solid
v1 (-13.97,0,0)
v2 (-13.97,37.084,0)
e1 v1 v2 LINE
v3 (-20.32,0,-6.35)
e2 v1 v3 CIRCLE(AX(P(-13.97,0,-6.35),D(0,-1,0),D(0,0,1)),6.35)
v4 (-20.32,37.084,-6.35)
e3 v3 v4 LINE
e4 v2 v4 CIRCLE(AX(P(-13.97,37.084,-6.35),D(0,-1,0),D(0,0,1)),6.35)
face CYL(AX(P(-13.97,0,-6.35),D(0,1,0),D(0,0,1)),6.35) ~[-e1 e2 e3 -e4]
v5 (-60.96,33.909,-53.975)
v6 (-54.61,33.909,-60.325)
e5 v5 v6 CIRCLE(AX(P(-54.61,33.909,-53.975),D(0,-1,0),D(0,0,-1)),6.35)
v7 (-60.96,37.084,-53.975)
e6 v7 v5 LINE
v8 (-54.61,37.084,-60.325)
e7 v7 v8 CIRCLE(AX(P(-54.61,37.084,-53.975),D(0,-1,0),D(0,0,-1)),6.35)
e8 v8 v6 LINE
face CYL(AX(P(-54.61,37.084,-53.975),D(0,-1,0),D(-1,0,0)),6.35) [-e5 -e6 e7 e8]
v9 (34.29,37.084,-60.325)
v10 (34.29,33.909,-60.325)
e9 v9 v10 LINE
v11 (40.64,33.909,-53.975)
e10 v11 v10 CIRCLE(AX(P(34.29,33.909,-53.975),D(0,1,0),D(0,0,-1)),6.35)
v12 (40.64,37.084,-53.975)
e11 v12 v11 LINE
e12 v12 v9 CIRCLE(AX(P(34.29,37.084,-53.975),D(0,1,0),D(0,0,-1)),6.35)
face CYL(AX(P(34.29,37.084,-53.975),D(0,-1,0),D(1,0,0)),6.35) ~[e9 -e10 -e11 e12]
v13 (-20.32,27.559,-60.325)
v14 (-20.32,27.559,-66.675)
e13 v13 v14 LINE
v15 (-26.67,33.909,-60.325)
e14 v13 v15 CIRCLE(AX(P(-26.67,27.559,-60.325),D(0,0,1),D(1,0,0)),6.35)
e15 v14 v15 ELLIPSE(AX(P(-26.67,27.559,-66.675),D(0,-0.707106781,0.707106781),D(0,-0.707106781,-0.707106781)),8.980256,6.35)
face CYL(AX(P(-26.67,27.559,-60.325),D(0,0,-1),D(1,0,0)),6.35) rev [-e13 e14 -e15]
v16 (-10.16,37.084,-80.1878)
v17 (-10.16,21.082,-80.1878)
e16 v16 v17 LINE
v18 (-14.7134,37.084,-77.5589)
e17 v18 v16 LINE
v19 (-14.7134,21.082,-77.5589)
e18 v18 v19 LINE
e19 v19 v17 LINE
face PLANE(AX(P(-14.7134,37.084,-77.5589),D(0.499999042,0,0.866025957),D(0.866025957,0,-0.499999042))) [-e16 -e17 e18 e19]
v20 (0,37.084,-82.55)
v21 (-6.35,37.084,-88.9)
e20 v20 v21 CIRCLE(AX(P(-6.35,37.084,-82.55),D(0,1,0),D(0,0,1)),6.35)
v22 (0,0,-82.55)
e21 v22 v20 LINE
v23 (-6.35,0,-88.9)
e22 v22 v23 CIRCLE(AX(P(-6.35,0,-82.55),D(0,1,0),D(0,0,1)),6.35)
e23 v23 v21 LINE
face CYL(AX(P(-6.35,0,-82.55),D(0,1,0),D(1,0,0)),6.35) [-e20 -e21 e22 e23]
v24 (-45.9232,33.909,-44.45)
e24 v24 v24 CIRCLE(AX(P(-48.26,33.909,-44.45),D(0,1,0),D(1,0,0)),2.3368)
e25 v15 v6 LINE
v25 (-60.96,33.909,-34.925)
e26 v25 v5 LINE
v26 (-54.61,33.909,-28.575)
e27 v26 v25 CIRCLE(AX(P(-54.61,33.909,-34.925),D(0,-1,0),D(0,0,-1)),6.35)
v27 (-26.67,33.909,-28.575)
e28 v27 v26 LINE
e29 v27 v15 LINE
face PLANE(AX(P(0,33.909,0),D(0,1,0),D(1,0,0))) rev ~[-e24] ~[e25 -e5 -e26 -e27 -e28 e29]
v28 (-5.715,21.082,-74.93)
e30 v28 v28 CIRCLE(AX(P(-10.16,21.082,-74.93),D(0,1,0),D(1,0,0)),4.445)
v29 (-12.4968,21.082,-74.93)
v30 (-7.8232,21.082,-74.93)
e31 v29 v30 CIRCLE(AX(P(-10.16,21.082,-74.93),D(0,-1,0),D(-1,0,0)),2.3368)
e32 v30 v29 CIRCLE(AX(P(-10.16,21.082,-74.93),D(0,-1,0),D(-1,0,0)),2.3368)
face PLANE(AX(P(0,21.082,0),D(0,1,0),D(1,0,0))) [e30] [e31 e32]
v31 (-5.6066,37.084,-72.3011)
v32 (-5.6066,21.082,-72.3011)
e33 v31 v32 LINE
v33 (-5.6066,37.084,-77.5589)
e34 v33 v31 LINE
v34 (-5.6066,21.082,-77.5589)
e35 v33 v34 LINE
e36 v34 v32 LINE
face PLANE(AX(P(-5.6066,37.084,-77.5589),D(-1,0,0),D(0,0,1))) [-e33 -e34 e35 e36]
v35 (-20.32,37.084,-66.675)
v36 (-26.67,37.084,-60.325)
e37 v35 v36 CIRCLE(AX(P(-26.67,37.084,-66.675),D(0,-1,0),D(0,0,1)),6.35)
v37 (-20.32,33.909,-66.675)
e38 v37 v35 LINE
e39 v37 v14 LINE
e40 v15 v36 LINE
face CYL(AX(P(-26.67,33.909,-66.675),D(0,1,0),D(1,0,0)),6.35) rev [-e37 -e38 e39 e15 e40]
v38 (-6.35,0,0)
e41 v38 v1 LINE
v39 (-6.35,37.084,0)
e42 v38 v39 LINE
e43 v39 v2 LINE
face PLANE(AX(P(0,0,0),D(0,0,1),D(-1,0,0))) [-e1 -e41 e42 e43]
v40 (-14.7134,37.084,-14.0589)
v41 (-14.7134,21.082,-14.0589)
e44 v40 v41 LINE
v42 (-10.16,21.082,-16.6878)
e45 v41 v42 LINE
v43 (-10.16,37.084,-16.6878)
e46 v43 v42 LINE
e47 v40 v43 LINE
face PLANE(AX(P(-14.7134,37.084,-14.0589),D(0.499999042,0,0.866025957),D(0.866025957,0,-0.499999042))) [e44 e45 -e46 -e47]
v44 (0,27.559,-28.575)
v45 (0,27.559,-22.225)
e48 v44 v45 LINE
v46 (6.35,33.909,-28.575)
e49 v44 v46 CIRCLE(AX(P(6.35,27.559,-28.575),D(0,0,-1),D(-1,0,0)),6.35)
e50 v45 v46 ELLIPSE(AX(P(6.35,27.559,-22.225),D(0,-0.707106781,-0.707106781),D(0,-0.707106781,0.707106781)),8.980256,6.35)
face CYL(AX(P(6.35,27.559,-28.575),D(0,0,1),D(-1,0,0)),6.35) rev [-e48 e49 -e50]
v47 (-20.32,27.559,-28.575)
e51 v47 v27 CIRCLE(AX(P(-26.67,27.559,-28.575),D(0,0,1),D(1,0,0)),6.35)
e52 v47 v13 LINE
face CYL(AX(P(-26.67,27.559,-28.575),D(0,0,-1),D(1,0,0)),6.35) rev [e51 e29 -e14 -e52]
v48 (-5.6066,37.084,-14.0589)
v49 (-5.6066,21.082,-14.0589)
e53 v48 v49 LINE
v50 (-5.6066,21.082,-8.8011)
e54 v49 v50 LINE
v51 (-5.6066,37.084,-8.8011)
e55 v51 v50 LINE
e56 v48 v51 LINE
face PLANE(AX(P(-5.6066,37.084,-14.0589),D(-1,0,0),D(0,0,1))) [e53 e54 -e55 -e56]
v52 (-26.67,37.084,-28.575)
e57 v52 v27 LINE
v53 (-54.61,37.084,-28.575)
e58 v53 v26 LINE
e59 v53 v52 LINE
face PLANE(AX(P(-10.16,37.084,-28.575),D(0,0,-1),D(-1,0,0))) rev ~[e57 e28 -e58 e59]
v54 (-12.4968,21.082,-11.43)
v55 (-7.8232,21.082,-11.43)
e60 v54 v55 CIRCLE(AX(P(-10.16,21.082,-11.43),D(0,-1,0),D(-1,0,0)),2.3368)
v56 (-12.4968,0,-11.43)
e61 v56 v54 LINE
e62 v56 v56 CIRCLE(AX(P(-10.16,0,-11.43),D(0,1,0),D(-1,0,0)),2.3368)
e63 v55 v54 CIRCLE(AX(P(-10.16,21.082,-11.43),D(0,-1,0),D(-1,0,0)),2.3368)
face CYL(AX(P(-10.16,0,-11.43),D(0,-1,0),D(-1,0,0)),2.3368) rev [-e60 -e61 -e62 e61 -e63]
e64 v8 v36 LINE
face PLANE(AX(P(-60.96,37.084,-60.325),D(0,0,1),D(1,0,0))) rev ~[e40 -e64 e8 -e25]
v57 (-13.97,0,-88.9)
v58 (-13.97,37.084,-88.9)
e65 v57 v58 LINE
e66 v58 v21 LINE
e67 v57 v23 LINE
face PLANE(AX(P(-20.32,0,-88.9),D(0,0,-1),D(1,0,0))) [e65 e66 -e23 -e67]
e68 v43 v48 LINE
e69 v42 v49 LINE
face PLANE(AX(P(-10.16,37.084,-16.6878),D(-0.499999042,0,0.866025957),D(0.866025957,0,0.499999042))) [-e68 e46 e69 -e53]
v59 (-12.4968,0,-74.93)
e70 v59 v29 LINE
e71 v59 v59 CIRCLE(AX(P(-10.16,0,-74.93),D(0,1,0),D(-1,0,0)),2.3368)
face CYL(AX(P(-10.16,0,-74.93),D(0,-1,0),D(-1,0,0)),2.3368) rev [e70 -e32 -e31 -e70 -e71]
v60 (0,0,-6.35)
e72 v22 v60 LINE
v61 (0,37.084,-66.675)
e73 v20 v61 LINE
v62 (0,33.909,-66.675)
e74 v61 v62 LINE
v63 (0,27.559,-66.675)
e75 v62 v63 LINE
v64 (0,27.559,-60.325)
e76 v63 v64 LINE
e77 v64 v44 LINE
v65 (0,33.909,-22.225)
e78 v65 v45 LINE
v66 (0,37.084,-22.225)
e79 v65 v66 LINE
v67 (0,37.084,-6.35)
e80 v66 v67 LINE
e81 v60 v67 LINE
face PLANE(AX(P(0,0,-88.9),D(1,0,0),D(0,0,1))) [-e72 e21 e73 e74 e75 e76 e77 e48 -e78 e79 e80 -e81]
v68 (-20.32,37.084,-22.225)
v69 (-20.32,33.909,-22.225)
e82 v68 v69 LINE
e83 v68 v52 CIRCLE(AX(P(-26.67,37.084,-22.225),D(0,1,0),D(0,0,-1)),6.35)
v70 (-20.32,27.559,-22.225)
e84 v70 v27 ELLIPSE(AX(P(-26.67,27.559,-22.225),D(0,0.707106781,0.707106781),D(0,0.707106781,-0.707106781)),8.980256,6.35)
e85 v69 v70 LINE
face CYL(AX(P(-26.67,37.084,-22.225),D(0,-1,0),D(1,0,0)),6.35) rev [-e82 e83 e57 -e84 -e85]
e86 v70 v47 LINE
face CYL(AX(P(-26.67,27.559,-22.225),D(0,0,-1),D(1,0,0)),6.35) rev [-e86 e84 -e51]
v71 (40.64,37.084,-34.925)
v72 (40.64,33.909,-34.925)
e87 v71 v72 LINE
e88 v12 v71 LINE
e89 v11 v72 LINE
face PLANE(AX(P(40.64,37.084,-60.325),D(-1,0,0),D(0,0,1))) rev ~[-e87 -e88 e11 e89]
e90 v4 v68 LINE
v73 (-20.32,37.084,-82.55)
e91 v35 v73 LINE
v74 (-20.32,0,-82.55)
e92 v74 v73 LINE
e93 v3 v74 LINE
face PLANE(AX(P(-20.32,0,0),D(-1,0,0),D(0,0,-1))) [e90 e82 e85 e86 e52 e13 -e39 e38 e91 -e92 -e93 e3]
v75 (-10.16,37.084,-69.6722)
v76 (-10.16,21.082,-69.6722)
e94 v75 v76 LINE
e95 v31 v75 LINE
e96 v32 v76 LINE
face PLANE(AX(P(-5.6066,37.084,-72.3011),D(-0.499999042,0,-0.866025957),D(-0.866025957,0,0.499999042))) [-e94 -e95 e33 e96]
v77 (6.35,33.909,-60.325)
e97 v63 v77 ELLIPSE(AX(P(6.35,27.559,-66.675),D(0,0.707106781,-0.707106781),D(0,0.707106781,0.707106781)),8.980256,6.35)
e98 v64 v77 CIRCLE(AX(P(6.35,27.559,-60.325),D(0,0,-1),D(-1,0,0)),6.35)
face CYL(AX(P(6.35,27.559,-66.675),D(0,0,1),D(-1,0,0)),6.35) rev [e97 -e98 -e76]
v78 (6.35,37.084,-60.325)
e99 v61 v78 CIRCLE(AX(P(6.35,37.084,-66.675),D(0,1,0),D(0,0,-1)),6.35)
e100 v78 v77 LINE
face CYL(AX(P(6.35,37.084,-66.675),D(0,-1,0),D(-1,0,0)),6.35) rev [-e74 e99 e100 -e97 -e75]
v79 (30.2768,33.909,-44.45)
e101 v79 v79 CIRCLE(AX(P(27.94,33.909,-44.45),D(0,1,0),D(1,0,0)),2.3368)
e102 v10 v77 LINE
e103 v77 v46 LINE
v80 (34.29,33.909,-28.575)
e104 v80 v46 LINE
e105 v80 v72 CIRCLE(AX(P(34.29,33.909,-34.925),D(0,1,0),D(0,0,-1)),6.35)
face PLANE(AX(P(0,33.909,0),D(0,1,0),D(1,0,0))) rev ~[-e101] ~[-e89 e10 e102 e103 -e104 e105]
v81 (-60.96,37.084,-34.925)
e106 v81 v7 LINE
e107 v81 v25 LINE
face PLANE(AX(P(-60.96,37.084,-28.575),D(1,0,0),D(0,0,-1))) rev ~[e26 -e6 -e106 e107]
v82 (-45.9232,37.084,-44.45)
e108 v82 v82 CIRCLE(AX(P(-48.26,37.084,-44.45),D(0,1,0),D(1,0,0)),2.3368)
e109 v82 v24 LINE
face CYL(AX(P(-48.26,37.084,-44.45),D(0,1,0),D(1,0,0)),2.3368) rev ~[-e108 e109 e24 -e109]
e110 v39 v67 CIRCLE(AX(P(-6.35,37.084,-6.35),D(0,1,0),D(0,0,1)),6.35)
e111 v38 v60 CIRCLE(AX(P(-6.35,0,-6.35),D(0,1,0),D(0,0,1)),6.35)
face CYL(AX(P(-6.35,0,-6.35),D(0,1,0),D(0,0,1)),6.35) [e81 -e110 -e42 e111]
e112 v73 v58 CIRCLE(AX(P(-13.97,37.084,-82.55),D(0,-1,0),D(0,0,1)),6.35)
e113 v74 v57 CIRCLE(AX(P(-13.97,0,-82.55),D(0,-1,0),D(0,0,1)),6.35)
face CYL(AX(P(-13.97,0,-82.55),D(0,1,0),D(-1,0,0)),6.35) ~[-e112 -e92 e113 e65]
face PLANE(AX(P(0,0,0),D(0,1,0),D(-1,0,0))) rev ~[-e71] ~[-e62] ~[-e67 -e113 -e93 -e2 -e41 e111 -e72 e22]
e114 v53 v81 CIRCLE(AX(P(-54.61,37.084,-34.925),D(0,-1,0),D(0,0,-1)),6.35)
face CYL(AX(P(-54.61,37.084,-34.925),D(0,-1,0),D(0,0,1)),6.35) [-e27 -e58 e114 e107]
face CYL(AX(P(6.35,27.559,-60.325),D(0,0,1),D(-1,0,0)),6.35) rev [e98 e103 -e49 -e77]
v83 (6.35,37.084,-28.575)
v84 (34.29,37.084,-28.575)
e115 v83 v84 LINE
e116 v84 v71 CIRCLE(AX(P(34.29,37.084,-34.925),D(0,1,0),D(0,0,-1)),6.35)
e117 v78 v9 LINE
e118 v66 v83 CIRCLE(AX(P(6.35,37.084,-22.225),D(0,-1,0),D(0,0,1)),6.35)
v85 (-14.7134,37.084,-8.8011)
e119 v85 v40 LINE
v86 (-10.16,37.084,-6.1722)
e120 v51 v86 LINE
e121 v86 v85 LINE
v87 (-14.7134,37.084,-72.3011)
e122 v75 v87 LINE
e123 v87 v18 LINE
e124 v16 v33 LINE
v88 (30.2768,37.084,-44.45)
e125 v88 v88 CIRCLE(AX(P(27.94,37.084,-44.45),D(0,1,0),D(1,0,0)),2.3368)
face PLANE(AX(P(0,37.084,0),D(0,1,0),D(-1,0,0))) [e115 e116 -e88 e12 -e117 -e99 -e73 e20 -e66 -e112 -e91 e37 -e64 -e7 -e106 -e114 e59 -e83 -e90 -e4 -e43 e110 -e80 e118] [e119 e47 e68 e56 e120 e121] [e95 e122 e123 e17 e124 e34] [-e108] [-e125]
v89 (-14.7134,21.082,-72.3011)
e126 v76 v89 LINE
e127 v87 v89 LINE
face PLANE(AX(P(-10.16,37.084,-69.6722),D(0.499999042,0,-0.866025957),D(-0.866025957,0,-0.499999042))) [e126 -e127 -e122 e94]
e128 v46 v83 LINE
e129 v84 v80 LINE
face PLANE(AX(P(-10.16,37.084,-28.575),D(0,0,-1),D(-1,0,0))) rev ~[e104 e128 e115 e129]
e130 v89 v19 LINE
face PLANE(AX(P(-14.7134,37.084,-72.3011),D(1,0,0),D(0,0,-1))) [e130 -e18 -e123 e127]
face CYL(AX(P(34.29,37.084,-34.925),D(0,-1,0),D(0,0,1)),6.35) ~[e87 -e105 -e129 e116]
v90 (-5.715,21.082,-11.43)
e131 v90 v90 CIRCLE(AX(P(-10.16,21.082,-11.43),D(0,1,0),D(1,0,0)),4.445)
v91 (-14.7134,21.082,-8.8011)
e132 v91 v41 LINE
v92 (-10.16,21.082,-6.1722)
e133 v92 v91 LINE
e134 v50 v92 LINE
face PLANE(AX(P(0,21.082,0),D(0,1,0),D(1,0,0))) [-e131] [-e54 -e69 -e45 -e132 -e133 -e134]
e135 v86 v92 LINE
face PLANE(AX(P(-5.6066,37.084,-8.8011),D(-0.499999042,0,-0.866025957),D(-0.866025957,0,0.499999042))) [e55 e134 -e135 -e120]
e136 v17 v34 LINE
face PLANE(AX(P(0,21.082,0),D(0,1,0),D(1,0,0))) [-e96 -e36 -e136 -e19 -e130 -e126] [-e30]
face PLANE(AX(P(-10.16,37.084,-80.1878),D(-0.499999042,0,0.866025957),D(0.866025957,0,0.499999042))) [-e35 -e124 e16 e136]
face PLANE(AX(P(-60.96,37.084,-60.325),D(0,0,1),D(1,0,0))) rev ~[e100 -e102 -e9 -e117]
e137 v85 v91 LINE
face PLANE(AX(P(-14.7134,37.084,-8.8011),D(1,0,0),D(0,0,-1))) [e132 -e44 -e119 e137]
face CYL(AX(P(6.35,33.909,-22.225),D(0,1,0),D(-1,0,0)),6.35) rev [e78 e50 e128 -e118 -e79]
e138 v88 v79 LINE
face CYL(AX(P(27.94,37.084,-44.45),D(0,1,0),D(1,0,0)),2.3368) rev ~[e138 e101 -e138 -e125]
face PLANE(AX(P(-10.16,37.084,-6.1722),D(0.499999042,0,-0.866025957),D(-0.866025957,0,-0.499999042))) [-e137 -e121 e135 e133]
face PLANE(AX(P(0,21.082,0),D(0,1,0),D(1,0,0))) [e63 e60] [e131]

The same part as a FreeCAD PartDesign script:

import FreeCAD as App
import Part
import Sketcher

V = App.Vector
Q = App.Units.Quantity


def edges_at(feature, points):
    """Names of the edges that pass closest to the given points."""
    edges = feature.Shape.Edges
    near = lambda p: min(range(len(edges)), key=lambda i: edges[i].distToShape(Part.Vertex(*p))[0])
    return sorted({f"Edge{near(p) + 1}" for p in points})

doc = App.newDocument("Part")
body = doc.addObject("PartDesign::Body", "Body")

sketch1 = body.newObject("Sketcher::SketchObject", "Sketch")
sketch1.AttachmentSupport = (doc.getObject("XZ_Plane"), [""])
sketch1.MapMode = "FlatFace"
sketch1.addGeometry([
    Part.LineSegment(V(-20.32, 0, 0), V(0, 0, 0)),
    Part.LineSegment(V(0, 0, 0), V(0, -88.9, 0)),
    Part.LineSegment(V(0, -88.9, 0), V(-20.32, -88.9, 0)),
    Part.LineSegment(V(-20.32, -88.9, 0), V(-20.32, 0, 0)),
    Part.Circle(V(-10.16, -74.93, 0), V(0, 0, 1), 2.3368),
    Part.Circle(V(-10.16, -11.43, 0), V(0, 0, 1), 2.3368),
], False)
sketch1.addConstraint([
    Sketcher.Constraint("Coincident", 0, 2, 1, 1),
    Sketcher.Constraint("Coincident", 1, 2, 2, 1),
    Sketcher.Constraint("Coincident", 2, 2, 3, 1),
    Sketcher.Constraint("Coincident", 3, 2, 0, 1),
    Sketcher.Constraint("Horizontal", 0),
    Sketcher.Constraint("Vertical", 1),
    Sketcher.Constraint("Horizontal", 2),
    Sketcher.Constraint("Vertical", 3),
    Sketcher.Constraint("Coincident", 0, 2, -1, 1),
    Sketcher.Constraint("Equal", 4, 5),
    Sketcher.Constraint("Vertical", 4, 3, 5, 3),
    Sketcher.Constraint("Diameter", 4, Q("0.184 in")),
    Sketcher.Constraint("DistanceX", 0, 1, 0, 2, Q("0.8 in")),
    Sketcher.Constraint("DistanceY", 1, 2, 1, 1, Q("3.5 in")),
    Sketcher.Constraint("DistanceY", 4, 3, 5, 3, Q("2.5 in")),
    Sketcher.Constraint("DistanceY", 1, 2, 4, 3, Q("0.55 in")),
    Sketcher.Constraint("DistanceX", 4, 3, -1, 1, Q("0.4 in")),
])
pad1 = body.newObject("PartDesign::Pad", "Pad")
pad1.Profile = sketch1
pad1.Length = Q("1.46 in")
pad1.Reversed = True

sketch2 = body.newObject("Sketcher::SketchObject", "Sketch001")
sketch2.AttachmentSupport = (doc.getObject("XZ_Plane"), [""])
sketch2.MapMode = "FlatFace"
sketch2.AttachmentOffset = App.Placement(V(0, 0, -1.46 * 25.4), App.Rotation())
sketch2.addGeometry([
    Part.LineSegment(V(-60.96, -60.325, 0), V(-60.96, -28.575, 0)),
    Part.LineSegment(V(-60.96, -28.575, 0), V(40.64, -28.575, 0)),
    Part.LineSegment(V(40.64, -28.575, 0), V(40.64, -60.325, 0)),
    Part.LineSegment(V(40.64, -60.325, 0), V(-60.96, -60.325, 0)),
    Part.Circle(V(-48.26, -44.45, 0), V(0, 0, 1), 2.3368),
    Part.Circle(V(27.94, -44.45, 0), V(0, 0, 1), 2.3368),
], False)
sketch2.addConstraint([
    Sketcher.Constraint("Coincident", 0, 2, 1, 1),
    Sketcher.Constraint("Coincident", 1, 2, 2, 1),
    Sketcher.Constraint("Coincident", 2, 2, 3, 1),
    Sketcher.Constraint("Coincident", 3, 2, 0, 1),
    Sketcher.Constraint("Vertical", 0),
    Sketcher.Constraint("Horizontal", 1),
    Sketcher.Constraint("Vertical", 2),
    Sketcher.Constraint("Horizontal", 3),
    Sketcher.Constraint("Equal", 4, 5),
    Sketcher.Constraint("Horizontal", 4, 3, 5, 3),
    Sketcher.Constraint("DistanceX", 1, 1, 1, 2, Q("4 in")),
    Sketcher.Constraint("Diameter", 4, Q("0.184 in")),
    Sketcher.Constraint("DistanceY", 0, 1, 0, 2, Q("1.25 in")),
    Sketcher.Constraint("DistanceY", 4, 3, -1, 1, Q("1.75 in")),
    Sketcher.Constraint("DistanceX", 4, 3, 5, 3, Q("3 in")),
    Sketcher.Constraint("DistanceX", 4, 3, -1, 1, Q("1.9 in")),
    Sketcher.Constraint("DistanceX", 0, 2, -1, 1, Q("2.4 in")),
    Sketcher.Constraint("DistanceY", 0, 2, -1, 1, Q("1.125 in")),
])
pad2 = body.newObject("PartDesign::Pad", "Pad001")
pad2.Profile = sketch2
pad2.Length = Q("0.125 in")

sketch3 = body.newObject("Sketcher::SketchObject", "Sketch002")
sketch3.AttachmentSupport = (doc.getObject("XZ_Plane"), [""])
sketch3.MapMode = "FlatFace"
sketch3.AttachmentOffset = App.Placement(V(0, 0, -1.46 * 25.4), App.Rotation())
sketch3.addGeometry([
    Part.Circle(V(-10.16, -11.43, 0), V(0, 0, 1), 4.445),
    Part.Circle(V(-10.16, -74.93, 0), V(0, 0, 1), 4.445),
], False)
sketch3.addConstraint([
    Sketcher.Constraint("Equal", 0, 1),
    Sketcher.Constraint("Vertical", 0, 3, 1, 3),
    Sketcher.Constraint("Diameter", 0, Q("0.35 in")),
    Sketcher.Constraint("DistanceX", 0, 3, -1, 1, Q("0.4 in")),
    Sketcher.Constraint("DistanceY", 1, 3, 0, 3, Q("2.5 in")),
    Sketcher.Constraint("DistanceY", 0, 3, -1, 1, Q("0.45 in")),
])
pocket1 = body.newObject("PartDesign::Pocket", "Pocket")
pocket1.Profile = sketch3
pocket1.Length = Q("0.63 in")
pocket1.Reversed = True
doc.recompute()

fillet = body.newObject("PartDesign::Fillet", "Fillet")
fillet.Base = (pocket1, edges_at(pocket1, [
    (-20.32, 18.542, -88.9),
    (0, 18.542, -88.9),
    (-20.32, 18.542, 0),
    (0, 18.542, 0),
]))
fillet.Radius = Q("0.25 in")
doc.recompute()

fillet2 = body.newObject("PartDesign::Fillet", "Fillet001")
fillet2.Base = (fillet, edges_at(fillet, [
    (-60.96, 35.496, -60.325),
    (-60.96, 35.496, -28.575),
    (-20.32, 35.496, -28.575),
    (0, 35.496, -28.575),
    (40.64, 35.496, -28.575),
    (40.64, 35.496, -60.325),
    (0, 35.496, -60.325),
    (-20.32, 35.496, -60.325),
]))
fillet2.Radius = Q("0.25 in")
doc.recompute()

fillet3 = body.newObject("PartDesign::Fillet", "Fillet002")
fillet3.Base = (fillet2, edges_at(fillet2, [(-20.32, 33.909, -44.45), (0, 33.909, -44.45)]))
fillet3.Radius = Q("0.25 in")

sketch4 = body.newObject("Sketcher::SketchObject", "Sketch003")
sketch4.AttachmentSupport = (doc.getObject("XZ_Plane"), [""])
sketch4.MapMode = "FlatFace"
sketch4.AttachmentOffset = App.Placement(V(0, 0, -1.46 * 25.4), App.Rotation())
sketch4.addGeometry([
    Part.LineSegment(V(-5.6066, -14.0589, 0), V(-10.16, -16.6878, 0)),
    Part.LineSegment(V(-10.16, -16.6878, 0), V(-14.7134, -14.0589, 0)),
    Part.LineSegment(V(-14.7134, -14.0589, 0), V(-14.7134, -8.8011, 0)),
    Part.LineSegment(V(-14.7134, -8.8011, 0), V(-10.16, -6.1722, 0)),
    Part.LineSegment(V(-10.16, -6.1722, 0), V(-5.6066, -8.8011, 0)),
    Part.LineSegment(V(-5.6066, -8.8011, 0), V(-5.6066, -14.0589, 0)),
    Part.Circle(V(-10.16, -11.43, 0), V(0, 0, 1), 2.3368),
    Part.LineSegment(V(-14.7134, -72.3011, 0), V(-10.16, -69.6722, 0)),
    Part.LineSegment(V(-10.16, -69.6722, 0), V(-5.6066, -72.3011, 0)),
    Part.LineSegment(V(-5.6066, -72.3011, 0), V(-5.6066, -77.5589, 0)),
    Part.LineSegment(V(-5.6066, -77.5589, 0), V(-10.16, -80.1878, 0)),
    Part.LineSegment(V(-10.16, -80.1878, 0), V(-14.7134, -77.5589, 0)),
    Part.LineSegment(V(-14.7134, -77.5589, 0), V(-14.7134, -72.3011, 0)),
    Part.Circle(V(-10.16, -74.93, 0), V(0, 0, 1), 2.3368),
], False)
sketch4.addConstraint([
    Sketcher.Constraint("Coincident", 0, 2, 1, 1),
    Sketcher.Constraint("Coincident", 1, 2, 2, 1),
    Sketcher.Constraint("Coincident", 2, 2, 3, 1),
    Sketcher.Constraint("Coincident", 3, 2, 4, 1),
    Sketcher.Constraint("Coincident", 4, 2, 5, 1),
    Sketcher.Constraint("Coincident", 5, 2, 0, 1),
    Sketcher.Constraint("Coincident", 7, 2, 8, 1),
    Sketcher.Constraint("Coincident", 8, 2, 9, 1),
    Sketcher.Constraint("Coincident", 9, 2, 10, 1),
    Sketcher.Constraint("Coincident", 10, 2, 11, 1),
    Sketcher.Constraint("Coincident", 11, 2, 12, 1),
    Sketcher.Constraint("Coincident", 12, 2, 7, 1),
    Sketcher.Constraint("Vertical", 2),
    Sketcher.Constraint("Vertical", 5),
    Sketcher.Constraint("Vertical", 9),
    Sketcher.Constraint("Vertical", 12),
    Sketcher.Constraint("Equal", 6, 13),
    Sketcher.Constraint("Parallel", 0, 3),
    Sketcher.Constraint("Parallel", 1, 4),
    Sketcher.Constraint("Parallel", 3, 7),
    Sketcher.Constraint("Parallel", 4, 8),
    Sketcher.Constraint("Parallel", 7, 10),
    Sketcher.Constraint("Parallel", 8, 11),
    Sketcher.Constraint("Horizontal", 2, 2, 4, 2),
    Sketcher.Constraint("Horizontal", 1, 2, 5, 2),
    Sketcher.Constraint("Horizontal", 9, 2, 11, 2),
    Sketcher.Constraint("Horizontal", 8, 2, 12, 2),
    Sketcher.Constraint("Vertical", 6, 3, 13, 3),
    Sketcher.Constraint("Vertical", 13, 3, 0, 2),
    Sketcher.Constraint("Vertical", 0, 2, 3, 2),
    Sketcher.Constraint("Vertical", 3, 2, 7, 2),
    Sketcher.Constraint("Vertical", 5, 2, 8, 2),
    Sketcher.Constraint("Equal", 5, 9),
    Sketcher.Constraint("DistanceY", 2, 1, 2, 2, Q("0.207 in")),
    Sketcher.Constraint("Distance", 0, Q("0.207 in")),
    Sketcher.Constraint("Diameter", 6, Q("0.184 in")),
    Sketcher.Constraint("Angle", 0, Q("-150 deg")),
    Sketcher.Constraint("DistanceY", 0, 2, 6, 3, Q("0.207 in")),
    Sketcher.Constraint("DistanceY", 13, 3, 7, 2, Q("0.207 in")),
    Sketcher.Constraint("DistanceX", 6, 3, -1, 1, Q("0.4 in")),
    Sketcher.Constraint("DistanceY", 13, 3, 6, 3, Q("2.5 in")),
    Sketcher.Constraint("DistanceY", 6, 3, -1, 1, Q("0.45 in")),
])
pocket2 = body.newObject("PartDesign::Pocket", "Pocket001")
pocket2.Profile = sketch4
pocket2.Length = Q("0.63 in")
pocket2.Reversed = True

doc.recompute()
